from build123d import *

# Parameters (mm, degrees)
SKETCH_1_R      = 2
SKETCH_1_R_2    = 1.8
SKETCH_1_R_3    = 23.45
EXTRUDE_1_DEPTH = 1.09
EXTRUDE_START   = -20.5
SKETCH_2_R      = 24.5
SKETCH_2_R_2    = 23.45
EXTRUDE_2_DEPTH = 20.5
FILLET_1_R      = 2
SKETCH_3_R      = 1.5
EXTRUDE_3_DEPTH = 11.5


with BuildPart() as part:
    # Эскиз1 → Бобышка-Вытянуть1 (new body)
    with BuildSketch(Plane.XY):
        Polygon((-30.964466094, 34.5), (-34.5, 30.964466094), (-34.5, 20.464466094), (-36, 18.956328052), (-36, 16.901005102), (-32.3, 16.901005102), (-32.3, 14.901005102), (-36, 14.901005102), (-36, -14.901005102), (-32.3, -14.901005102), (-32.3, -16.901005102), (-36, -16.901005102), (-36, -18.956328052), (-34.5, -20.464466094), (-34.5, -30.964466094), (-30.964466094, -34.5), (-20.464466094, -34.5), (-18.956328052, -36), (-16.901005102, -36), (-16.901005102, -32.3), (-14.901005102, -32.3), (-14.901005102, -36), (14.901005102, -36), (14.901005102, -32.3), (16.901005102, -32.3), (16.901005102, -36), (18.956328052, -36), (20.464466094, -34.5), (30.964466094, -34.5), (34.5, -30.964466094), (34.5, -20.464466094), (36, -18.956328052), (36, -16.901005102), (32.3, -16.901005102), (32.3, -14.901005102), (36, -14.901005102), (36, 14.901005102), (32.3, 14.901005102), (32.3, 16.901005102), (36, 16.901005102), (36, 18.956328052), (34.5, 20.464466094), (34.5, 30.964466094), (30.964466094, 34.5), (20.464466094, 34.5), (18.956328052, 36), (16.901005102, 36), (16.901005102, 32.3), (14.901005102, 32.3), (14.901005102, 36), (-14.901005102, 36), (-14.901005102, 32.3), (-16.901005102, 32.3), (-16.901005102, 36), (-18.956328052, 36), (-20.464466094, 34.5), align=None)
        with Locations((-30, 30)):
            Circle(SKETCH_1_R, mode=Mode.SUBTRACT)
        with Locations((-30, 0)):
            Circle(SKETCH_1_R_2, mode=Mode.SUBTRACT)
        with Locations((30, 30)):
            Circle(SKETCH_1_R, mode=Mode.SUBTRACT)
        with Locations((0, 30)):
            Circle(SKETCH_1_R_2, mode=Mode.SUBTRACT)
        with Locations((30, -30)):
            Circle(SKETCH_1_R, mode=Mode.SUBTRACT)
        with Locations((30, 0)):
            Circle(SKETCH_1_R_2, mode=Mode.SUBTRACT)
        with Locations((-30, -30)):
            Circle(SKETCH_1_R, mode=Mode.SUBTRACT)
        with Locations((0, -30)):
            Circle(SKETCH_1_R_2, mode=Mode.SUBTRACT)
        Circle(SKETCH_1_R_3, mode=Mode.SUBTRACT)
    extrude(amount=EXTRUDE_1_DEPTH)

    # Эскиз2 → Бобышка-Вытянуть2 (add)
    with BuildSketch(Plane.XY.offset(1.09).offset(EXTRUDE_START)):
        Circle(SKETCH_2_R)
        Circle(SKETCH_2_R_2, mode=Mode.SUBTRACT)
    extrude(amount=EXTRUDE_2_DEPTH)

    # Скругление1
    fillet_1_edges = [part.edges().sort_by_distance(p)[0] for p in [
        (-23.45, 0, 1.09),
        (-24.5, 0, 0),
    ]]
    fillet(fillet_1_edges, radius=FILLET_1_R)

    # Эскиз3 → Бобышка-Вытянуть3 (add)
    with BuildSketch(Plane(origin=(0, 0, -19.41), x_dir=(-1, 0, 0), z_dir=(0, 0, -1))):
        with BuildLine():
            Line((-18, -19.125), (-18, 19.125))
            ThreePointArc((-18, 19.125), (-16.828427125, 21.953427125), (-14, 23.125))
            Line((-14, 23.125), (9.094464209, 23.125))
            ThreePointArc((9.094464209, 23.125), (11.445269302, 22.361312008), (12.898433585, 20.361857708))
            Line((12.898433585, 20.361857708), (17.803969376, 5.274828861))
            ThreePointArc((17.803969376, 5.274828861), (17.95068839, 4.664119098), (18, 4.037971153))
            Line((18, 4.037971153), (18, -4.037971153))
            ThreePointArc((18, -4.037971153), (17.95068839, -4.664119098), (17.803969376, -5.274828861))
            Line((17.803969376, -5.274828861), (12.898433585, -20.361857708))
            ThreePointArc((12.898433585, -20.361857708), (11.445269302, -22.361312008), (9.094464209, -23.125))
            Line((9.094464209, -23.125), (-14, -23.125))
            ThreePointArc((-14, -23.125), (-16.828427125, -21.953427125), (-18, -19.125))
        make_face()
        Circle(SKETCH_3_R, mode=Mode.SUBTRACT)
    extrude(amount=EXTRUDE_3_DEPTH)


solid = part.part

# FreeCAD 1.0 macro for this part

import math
import FreeCAD as App
import Part
import Sketcher

V = App.Vector


def edges_at(feature, points):
    """Names of the edges that pass closest to the given points."""
    edges = feature.Shape.Edges
    near = lambda p: min(range(len(edges)), key=lambda i: edges[i].distToShape(Part.Vertex(*p))[0])
    return sorted({f"Edge{near(p) + 1}" for p in points})


def add_polygon(sketch, points):
    """Adds a closed chain of lines whose ends are joined by coincident constraints."""
    first, n = sketch.GeometryCount, len(points)
    for a, b in zip(points, points[1:] + points[:1]):
        sketch.addGeometry(Part.LineSegment(App.Vector(*a, 0), App.Vector(*b, 0)), False)
    for i in range(n):
        sketch.addConstraint(Sketcher.Constraint("Coincident", first + i, 2, first + (i + 1) % n, 1))

doc = App.newDocument("Part")
body = doc.addObject("PartDesign::Body", "Body")

sketch1 = body.newObject("Sketcher::SketchObject", "Sketch")
sketch1.AttachmentSupport = (doc.getObject("XY_Plane"), [""])
sketch1.MapMode = "FlatFace"
add_polygon(sketch1, [(-31, 34.5), (-34.5, 31), (-34.5, 20.5), (-36, 19), (-36, 16.9), (-32.3, 16.9), (-32.3, 14.9), (-36, 14.9), (-36, -14.9), (-32.3, -14.9), (-32.3, -16.9), (-36, -16.9), (-36, -19), (-34.5, -20.5), (-34.5, -31), (-31, -34.5), (-20.5, -34.5), (-19, -36), (-16.9, -36), (-16.9, -32.3), (-14.9, -32.3), (-14.9, -36), (14.9, -36), (14.9, -32.3), (16.9, -32.3), (16.9, -36), (19, -36), (20.5, -34.5), (31, -34.5), (34.5, -31), (34.5, -20.5), (36, -19), (36, -16.9), (32.3, -16.9), (32.3, -14.9), (36, -14.9), (36, 14.9), (32.3, 14.9), (32.3, 16.9), (36, 16.9), (36, 19), (34.5, 20.5), (34.5, 31), (31, 34.5), (20.5, 34.5), (19, 36), (16.9, 36), (16.9, 32.3), (14.9, 32.3), (14.9, 36), (-14.9, 36), (-14.9, 32.3), (-16.9, 32.3), (-16.9, 36), (-19, 36), (-20.5, 34.5)])
sketch1.addGeometry(Part.Circle(V(-30, -30, 0), V(0, 0, 1), 2), False)
sketch1.addGeometry(Part.Circle(V(0, -30, 0), V(0, 0, 1), 1.8), False)
sketch1.addGeometry(Part.Circle(V(30, -30, 0), V(0, 0, 1), 2), False)
sketch1.addGeometry(Part.Circle(V(-30, 0, 0), V(0, 0, 1), 1.8), False)
sketch1.addGeometry(Part.Circle(V(-30, 30, 0), V(0, 0, 1), 2), False)
sketch1.addGeometry(Part.Circle(V(0, 0, 0), V(0, 0, 1), 23.4), False)
sketch1.addGeometry(Part.Circle(V(30, 0, 0), V(0, 0, 1), 1.8), False)
sketch1.addGeometry(Part.Circle(V(0, 30, 0), V(0, 0, 1), 1.8), False)
sketch1.addGeometry(Part.Circle(V(30, 30, 0), V(0, 0, 1), 2), False)
sketch1.addConstraint([
    Sketcher.Constraint("Vertical", 1),
    Sketcher.Constraint("Vertical", 3),
    Sketcher.Constraint("Horizontal", 4),
    Sketcher.Constraint("Vertical", 5),
    Sketcher.Constraint("Horizontal", 6),
    Sketcher.Constraint("Vertical", 7),
    Sketcher.Constraint("Horizontal", 8),
    Sketcher.Constraint("Vertical", 9),
    Sketcher.Constraint("Horizontal", 10),
    Sketcher.Constraint("Vertical", 11),
    Sketcher.Constraint("Vertical", 13),
    Sketcher.Constraint("Horizontal", 15),
    Sketcher.Constraint("Horizontal", 17),
    Sketcher.Constraint("Vertical", 18),
    Sketcher.Constraint("Horizontal", 19),
    Sketcher.Constraint("Vertical", 20),
    Sketcher.Constraint("Horizontal", 21),
    Sketcher.Constraint("Vertical", 22),
    Sketcher.Constraint("Horizontal", 23),
    Sketcher.Constraint("Vertical", 24),
    Sketcher.Constraint("Horizontal", 25),
    Sketcher.Constraint("Horizontal", 27),
    Sketcher.Constraint("Vertical", 29),
    Sketcher.Constraint("Vertical", 31),
    Sketcher.Constraint("Horizontal", 32),
    Sketcher.Constraint("Vertical", 33),
    Sketcher.Constraint("Horizontal", 34),
    Sketcher.Constraint("Vertical", 35),
    Sketcher.Constraint("Horizontal", 36),
    Sketcher.Constraint("Vertical", 37),
    Sketcher.Constraint("Horizontal", 38),
    Sketcher.Constraint("Vertical", 39),
    Sketcher.Constraint("Vertical", 41),
    Sketcher.Constraint("Horizontal", 43),
    Sketcher.Constraint("Horizontal", 45),
    Sketcher.Constraint("Vertical", 46),
    Sketcher.Constraint("Horizontal", 47),
    Sketcher.Constraint("Vertical", 48),
    Sketcher.Constraint("Horizontal", 49),
    Sketcher.Constraint("Vertical", 50),
    Sketcher.Constraint("Horizontal", 51),
    Sketcher.Constraint("Vertical", 52),
    Sketcher.Constraint("Horizontal", 53),
    Sketcher.Constraint("Horizontal", 55),
    Sketcher.Constraint("Coincident", 61, 3, -1, 1),
    Sketcher.Constraint("Equal", 56, 58),
    Sketcher.Constraint("Equal", 57, 59),
    Sketcher.Constraint("Equal", 58, 60),
    Sketcher.Constraint("Equal", 59, 62),
    Sketcher.Constraint("Equal", 62, 63),
    Sketcher.Constraint("Equal", 60, 64),
    Sketcher.Constraint("Symmetric", 58, 3, 60, 3, -1, 1),
    Sketcher.Constraint("Symmetric", 59, 3, 62, 3, -1, 1),
    Sketcher.Constraint("Symmetric", 57, 3, 63, 3, -1, 1),
    Sketcher.Constraint("Symmetric", 56, 3, 64, 3, -1, 1),
    Sketcher.Constraint("Symmetric", 0, 2, 28, 2, -1, 1),
    Sketcher.Constraint("Symmetric", 2, 2, 30, 2, -1, 1),
    Sketcher.Constraint("Symmetric", 4, 2, 32, 2, -1, 1),
    Sketcher.Constraint("Symmetric", 6, 2, 34, 2, -1, 1),
    Sketcher.Constraint("Symmetric", 8, 2, 36, 2, -1, 1),
    Sketcher.Constraint("Symmetric", 10, 2, 38, 2, -1, 1),
    Sketcher.Constraint("Symmetric", 12, 2, 40, 2, -1, 1),
    Sketcher.Constraint("Symmetric", 14, 2, 42, 2, -1, 1),
    Sketcher.Constraint("Symmetric", 16, 2, 44, 2, -1, 1),
    Sketcher.Constraint("Symmetric", 18, 2, 46, 2, -1, 1),
    Sketcher.Constraint("Symmetric", 20, 2, 48, 2, -1, 1),
    Sketcher.Constraint("Symmetric", 22, 2, 50, 2, -1, 1),
    Sketcher.Constraint("Symmetric", 24, 2, 52, 2, -1, 1),
    Sketcher.Constraint("Symmetric", 26, 2, 54, 2, -1, 1),
    Sketcher.Constraint("Symmetric", 56, 3, 58, 3, -2),
    Sketcher.Constraint("Symmetric", 19, 2, 22, 2, -2),
    Sketcher.Constraint("Symmetric", 17, 2, 24, 2, -2),
    Sketcher.Constraint("Symmetric", 15, 2, 26, 2, -2),
    Sketcher.Constraint("Symmetric", 13, 2, 28, 2, -2),
    Sketcher.Constraint("Symmetric", 11, 2, 30, 2, -2),
    Sketcher.Constraint("Symmetric", 9, 2, 32, 2, -2),
    Sketcher.Constraint("PointOnObject", 57, 3, -2),
    Sketcher.Constraint("PointOnObject", 59, 3, -1),
    Sketcher.Constraint("Perpendicular", 0, 14),
    Sketcher.Constraint("Perpendicular", 2, 16),
    Sketcher.Constraint("Perpendicular", 12, 26),
    Sketcher.Constraint("Perpendicular", 14, 28),
    Sketcher.Constraint("Perpendicular", 16, 30),
    Sketcher.Constraint("Perpendicular", 26, 40),
    Sketcher.Constraint("Perpendicular", 28, 42),
    Sketcher.Constraint("Perpendicular", 30, 44),
    Sketcher.Constraint("Perpendicular", 40, 54),
    Sketcher.Constraint("Horizontal", 56, 3, 57, 3),
    Sketcher.Constraint("Horizontal", 17, 2, 20, 2),
    Sketcher.Constraint("Horizontal", 12, 2, 29, 2),
    Sketcher.Constraint("Horizontal", 8, 2, 33, 2),
    Sketcher.Constraint("Vertical", 56, 3, 59, 3),
    Sketcher.Constraint("Vertical", 3, 2, 6, 2),
    Sketcher.Constraint("Vertical", 27, 2, 42, 2),
    Sketcher.Constraint("Equal", 55, 1),
    Sketcher.Constraint("Equal", 53, 3),
    Sketcher.Constraint("Equal", 51, 5),
    Sketcher.Constraint("Equal", 49, 7),
    Sketcher.Constraint("Equal", 38, 18),
    Sketcher.Constraint("Equal", 12, 16),
    Sketcher.Constraint("Diameter", 56, 4.0),
    Sketcher.Constraint("Diameter", 57, 3.6),
    Sketcher.Constraint("Diameter", 61, 46.9),
    Sketcher.Constraint("DistanceX", 19, 1, 19, 2, 2.0),
    Sketcher.Constraint("Distance", 0, 5.0),
    Sketcher.Constraint("DistanceX", 4, 1, 4, 2, 3.7),
    Sketcher.Constraint("DistanceX", 15, 1, 15, 2, 10.5),
    Sketcher.Constraint("DistanceX", 56, 3, -1, 1, 30.0),
    Sketcher.Constraint("DistanceY", 56, 3, -1, 1, 30.0),
    Sketcher.Constraint("DistanceX", 2, 2, -1, 1, 36.0),
    Sketcher.Constraint("DistanceX", 0, 2, -1, 1, 34.5),
    Sketcher.Constraint("DistanceX", 21, 1, 21, 2, 29.80201),
    Sketcher.Constraint("DistanceX", 17, 1, 17, 2, 2.055323),
])
pad1 = body.newObject("PartDesign::Pad", "Pad")
pad1.Profile = sketch1
pad1.Length = 1.09

sketch2 = body.newObject("Sketcher::SketchObject", "Sketch001")
sketch2.AttachmentSupport = (doc.getObject("XY_Plane"), [""])
sketch2.MapMode = "FlatFace"
sketch2.AttachmentOffset = App.Placement(V(0, 0, -19.41), App.Rotation())
sketch2.addGeometry([
    Part.Circle(V(0, 0, 0), V(0, 0, 1), 24),
    Part.Circle(V(0, 0, 0), V(0, 0, 1), 23),
], False)
sketch2.addConstraint([
    Sketcher.Constraint("Coincident", 0, 3, -1, 1),
    Sketcher.Constraint("Coincident", 1, 3, -1, 1),
    Sketcher.Constraint("Diameter", 0, 49.0),
    Sketcher.Constraint("Diameter", 1, 46.9),
])
pad2 = body.newObject("PartDesign::Pad", "Pad001")
pad2.Profile = sketch2
pad2.Length = 20.5
doc.recompute()

fillet = body.newObject("PartDesign::Fillet", "Fillet")
fillet.Base = (pad2, edges_at(pad2, [(-23.45, 0, 1.09), (-24.5, 0, 0)]))
fillet.Radius = 2

sketch3 = body.newObject("Sketcher::SketchObject", "Sketch002")
sketch3.AttachmentSupport = (doc.getObject("XY_Plane"), [""])
sketch3.MapMode = "FlatFace"
sketch3.AttachmentOffset = App.Placement(V(0, 0, -19.41), App.Rotation())
sketch3.addGeometry([
    Part.LineSegment(V(18, 19.1, 0), V(18, -19.1, 0)),
    Part.ArcOfCircle(Part.Circle(V(14, -19.1, 0), V(0, 0, 1), 4), math.radians(-90), math.radians(0)),
    Part.LineSegment(V(14, -23.1, 0), V(-9.1, -23.1, 0)),
    Part.ArcOfCircle(Part.Circle(V(-9.1, -19.1, 0), V(0, 0, 1), 4), math.radians(-162), math.radians(-90)),
    Part.LineSegment(V(-12.9, -20.4, 0), V(-17.8, -5.3, 0)),
    Part.ArcOfCircle(Part.Circle(V(-14, -4, 0), V(0, 0, 1), 4), math.radians(180), math.radians(198.01)),
    Part.LineSegment(V(-18, -4, 0), V(-18, 4, 0)),
    Part.ArcOfCircle(Part.Circle(V(-14, 4, 0), V(0, 0, 1), 4), math.radians(161.99), math.radians(180)),
    Part.LineSegment(V(-17.8, 5.3, 0), V(-12.9, 20.4, 0)),
    Part.ArcOfCircle(Part.Circle(V(-9.1, 19.1, 0), V(0, 0, 1), 4), math.radians(90), math.radians(162)),
    Part.LineSegment(V(-9.1, 23.1, 0), V(14, 23.1, 0)),
    Part.ArcOfCircle(Part.Circle(V(14, 19.1, 0), V(0, 0, 1), 4), math.radians(0), math.radians(90)),
    Part.Circle(V(0, 0, 0), V(0, 0, 1), 1.5),
], False)
sketch3.addConstraint([
    Sketcher.Constraint("Tangent", 0, 2, 1, 2),
    Sketcher.Constraint("Tangent", 1, 1, 2, 1),
    Sketcher.Constraint("Tangent", 2, 2, 3, 2),
    Sketcher.Constraint("Tangent", 3, 1, 4, 1),
    Sketcher.Constraint("Tangent", 4, 2, 5, 2),
    Sketcher.Constraint("Tangent", 5, 1, 6, 1),
    Sketcher.Constraint("Tangent", 6, 2, 7, 2),
    Sketcher.Constraint("Tangent", 7, 1, 8, 1),
    Sketcher.Constraint("Tangent", 8, 2, 9, 2),
    Sketcher.Constraint("Tangent", 9, 1, 10, 1),
    Sketcher.Constraint("Tangent", 10, 2, 11, 2),
    Sketcher.Constraint("Tangent", 11, 1, 0, 1),
    Sketcher.Constraint("Vertical", 0),
    Sketcher.Constraint("Horizontal", 2),
    Sketcher.Constraint("Vertical", 6),
    Sketcher.Constraint("Horizontal", 10),
    Sketcher.Constraint("Coincident", 12, 3, -1, 1),
    Sketcher.Constraint("Equal", 1, 3),
    Sketcher.Constraint("Equal", 3, 5),
    Sketcher.Constraint("Equal", 5, 7),
    Sketcher.Constraint("Equal", 7, 9),
    Sketcher.Constraint("Equal", 9, 11),
    Sketcher.Constraint("Symmetric", 3, 3, 9, 3, -1),
    Sketcher.Constraint("Vertical", 4, 2, 7, 1),
    Sketcher.Constraint("Diameter", 12, 3.0),
    Sketcher.Constraint("Radius", 1, 4.0),
    Sketcher.Constraint("DistanceX", -1, 1, 1, 3, 14.0),
    Sketcher.Constraint("DistanceX", 5, 3, -1, 1, 14.0),
    Sketcher.Constraint("DistanceY", 0, 2, 0, 1, 38.25),
    Sketcher.Constraint("DistanceY", 4, 2, 7, 3, 9.3128),
    Sketcher.Constraint("Distance", 4, 15.864511),
])
pad3 = body.newObject("PartDesign::Pad", "Pad002")
pad3.Profile = sketch3
pad3.Length = 11.5
pad3.Reversed = True

doc.recompute()
